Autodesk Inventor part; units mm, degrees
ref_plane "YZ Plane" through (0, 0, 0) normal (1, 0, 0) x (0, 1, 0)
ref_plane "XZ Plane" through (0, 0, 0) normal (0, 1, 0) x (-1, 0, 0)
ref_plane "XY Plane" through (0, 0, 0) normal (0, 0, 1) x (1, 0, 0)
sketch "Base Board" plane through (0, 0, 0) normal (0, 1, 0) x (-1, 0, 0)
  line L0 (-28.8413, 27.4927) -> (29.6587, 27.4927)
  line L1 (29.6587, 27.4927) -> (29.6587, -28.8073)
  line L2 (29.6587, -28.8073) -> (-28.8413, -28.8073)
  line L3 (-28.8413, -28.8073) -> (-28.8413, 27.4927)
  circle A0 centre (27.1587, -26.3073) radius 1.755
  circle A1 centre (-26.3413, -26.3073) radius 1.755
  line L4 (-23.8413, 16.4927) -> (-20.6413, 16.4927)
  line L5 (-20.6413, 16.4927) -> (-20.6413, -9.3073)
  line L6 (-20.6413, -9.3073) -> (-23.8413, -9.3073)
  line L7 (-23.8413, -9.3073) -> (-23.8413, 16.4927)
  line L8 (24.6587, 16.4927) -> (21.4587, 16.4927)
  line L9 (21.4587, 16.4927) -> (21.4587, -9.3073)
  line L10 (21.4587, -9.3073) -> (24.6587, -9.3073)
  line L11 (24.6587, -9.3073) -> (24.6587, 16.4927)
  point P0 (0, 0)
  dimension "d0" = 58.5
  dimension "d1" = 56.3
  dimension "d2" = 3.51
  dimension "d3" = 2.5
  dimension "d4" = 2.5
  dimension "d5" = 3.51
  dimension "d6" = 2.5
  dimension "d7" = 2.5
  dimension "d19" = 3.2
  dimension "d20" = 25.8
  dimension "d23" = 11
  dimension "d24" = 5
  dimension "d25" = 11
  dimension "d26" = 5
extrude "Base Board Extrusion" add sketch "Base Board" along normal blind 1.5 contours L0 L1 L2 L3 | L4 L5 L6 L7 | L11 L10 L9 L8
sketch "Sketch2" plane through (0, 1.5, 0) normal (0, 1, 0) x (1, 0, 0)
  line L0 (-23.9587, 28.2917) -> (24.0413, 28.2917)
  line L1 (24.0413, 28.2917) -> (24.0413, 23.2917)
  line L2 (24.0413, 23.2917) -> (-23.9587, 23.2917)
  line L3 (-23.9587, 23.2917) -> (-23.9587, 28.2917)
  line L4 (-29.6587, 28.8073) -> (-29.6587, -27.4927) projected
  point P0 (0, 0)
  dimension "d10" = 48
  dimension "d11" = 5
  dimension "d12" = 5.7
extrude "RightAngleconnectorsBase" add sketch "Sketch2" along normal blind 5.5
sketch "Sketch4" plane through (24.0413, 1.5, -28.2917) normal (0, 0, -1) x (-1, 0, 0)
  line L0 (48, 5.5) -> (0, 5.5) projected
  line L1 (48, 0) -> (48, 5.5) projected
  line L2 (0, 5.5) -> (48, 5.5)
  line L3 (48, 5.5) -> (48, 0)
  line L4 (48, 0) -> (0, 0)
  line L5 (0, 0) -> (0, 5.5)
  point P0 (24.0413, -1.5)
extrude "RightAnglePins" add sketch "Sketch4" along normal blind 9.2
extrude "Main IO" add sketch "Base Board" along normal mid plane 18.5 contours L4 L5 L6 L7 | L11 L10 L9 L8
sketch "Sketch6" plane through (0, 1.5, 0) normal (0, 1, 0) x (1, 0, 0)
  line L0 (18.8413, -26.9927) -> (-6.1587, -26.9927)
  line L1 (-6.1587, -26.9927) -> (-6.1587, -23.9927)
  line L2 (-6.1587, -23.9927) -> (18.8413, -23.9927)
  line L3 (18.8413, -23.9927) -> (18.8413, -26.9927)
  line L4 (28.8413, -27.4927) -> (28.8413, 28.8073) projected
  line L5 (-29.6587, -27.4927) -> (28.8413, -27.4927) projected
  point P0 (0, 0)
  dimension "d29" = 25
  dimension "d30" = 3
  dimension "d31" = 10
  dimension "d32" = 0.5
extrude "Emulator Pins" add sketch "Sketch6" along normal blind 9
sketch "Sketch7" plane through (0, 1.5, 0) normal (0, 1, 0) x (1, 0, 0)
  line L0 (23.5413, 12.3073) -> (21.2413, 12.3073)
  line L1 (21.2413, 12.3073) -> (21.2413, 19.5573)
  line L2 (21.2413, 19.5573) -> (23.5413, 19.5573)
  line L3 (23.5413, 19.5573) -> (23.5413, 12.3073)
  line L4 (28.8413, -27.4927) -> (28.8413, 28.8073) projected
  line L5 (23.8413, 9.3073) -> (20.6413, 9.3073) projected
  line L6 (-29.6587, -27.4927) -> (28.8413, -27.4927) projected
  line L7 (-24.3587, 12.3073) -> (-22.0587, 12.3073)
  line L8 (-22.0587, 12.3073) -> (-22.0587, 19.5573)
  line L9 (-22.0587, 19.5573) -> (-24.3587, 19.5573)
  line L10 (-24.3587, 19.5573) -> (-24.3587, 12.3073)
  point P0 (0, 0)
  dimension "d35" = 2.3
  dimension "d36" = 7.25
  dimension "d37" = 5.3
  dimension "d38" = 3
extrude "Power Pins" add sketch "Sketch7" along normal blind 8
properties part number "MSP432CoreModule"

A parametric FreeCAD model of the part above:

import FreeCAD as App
import Part
import Sketcher
from FreeCAD import Vector
Q = App.Units.Quantity


def add_polygon(sketch, points):
    """Adds a closed chain of lines whose ends are joined by coincident constraints."""
    first, n = sketch.GeometryCount, len(points)
    for a, b in zip(points, points[1:] + points[:1]):
        sketch.addGeometry(Part.LineSegment(App.Vector(*a, 0), App.Vector(*b, 0)), False)
    for i in range(n):
        sketch.addConstraint(Sketcher.Constraint("Coincident", first + i, 2, first + (i + 1) % n, 1))

doc = App.newDocument("Part")
body = doc.addObject("PartDesign::Body", "Body")

sketch1 = body.newObject("Sketcher::SketchObject", "Sketch")
sketch1.AttachmentSupport = (doc.getObject("XZ_Plane"), [""])
sketch1.MapMode = "FlatFace"
add_polygon(sketch1, [(-29.7, 27.5), (28.8, 27.5), (28.8, -28.8), (-29.7, -28.8)])
sketch1.addGeometry(Part.Circle(Vector(26.3, -26.3, 0), Vector(0, 0, 1), 1.8), False)
sketch1.addGeometry(Part.Circle(Vector(-27.2, -26.3, 0), Vector(0, 0, 1), 1.8), False)
sketch1.addConstraint(Sketcher.Constraint("Horizontal", 0))
sketch1.addConstraint(Sketcher.Constraint("Vertical", 1))
sketch1.addConstraint(Sketcher.Constraint("Horizontal", 2))
sketch1.addConstraint(Sketcher.Constraint("Vertical", 3))
sketch1.addConstraint(Sketcher.Constraint("Equal", 4, 5))
sketch1.addConstraint(Sketcher.Constraint("Horizontal", 4, 3, 5, 3))
sketch1.addConstraint(Sketcher.Constraint("Diameter", 4, Q("3.51 mm")))
sketch1.addConstraint(Sketcher.Constraint("DistanceX", 0, 1, 0, 2, Q("58.5 mm")))
sketch1.addConstraint(Sketcher.Constraint("DistanceY", 1, 2, 1, 1, Q("56.3 mm")))
sketch1.addConstraint(Sketcher.Constraint("DistanceX", 4, 3, 0, 2, Q("2.5 mm")))
sketch1.addConstraint(Sketcher.Constraint("DistanceY", 1, 2, 4, 3, Q("2.5 mm")))
sketch1.addConstraint(Sketcher.Constraint("DistanceX", 2, 2, 5, 3, Q("2.5 mm")))
sketch1.addConstraint(Sketcher.Constraint("DistanceX", -1, 1, 4, 3, Q("26.3413 mm")))
sketch1.addConstraint(Sketcher.Constraint("DistanceY", 4, 3, -1, 1, Q("26.3073 mm")))
pad1 = body.newObject("PartDesign::Pad", "Pad")
pad1.Profile = sketch1
pad1.Length = 1.5
pad1.Reversed = True

sketch2 = body.newObject("Sketcher::SketchObject", "Sketch001")
sketch2.AttachmentSupport = (doc.getObject("XZ_Plane"), [""])
sketch2.MapMode = "FlatFace"
sketch2.AttachmentOffset = App.Placement(Vector(0, 0, -1.5), App.Rotation())
add_polygon(sketch2, [(24, -28), (-24, -28), (-24, -23), (24, -23)])
sketch2.addConstraint(Sketcher.Constraint("Horizontal", 0))
sketch2.addConstraint(Sketcher.Constraint("Vertical", 1))
sketch2.addConstraint(Sketcher.Constraint("Horizontal", 2))
sketch2.addConstraint(Sketcher.Constraint("Vertical", 3))
sketch2.addConstraint(Sketcher.Constraint("DistanceX", 0, 2, 0, 1, Q("48 mm")))
sketch2.addConstraint(Sketcher.Constraint("DistanceY", 1, 1, 1, 2, Q("5 mm")))
sketch2.addConstraint(Sketcher.Constraint("DistanceX", 0, 2, -1, 1, Q("23.9587 mm")))
sketch2.addConstraint(Sketcher.Constraint("DistanceY", 0, 2, -1, 1, Q("28.2917 mm")))
pad2 = body.newObject("PartDesign::Pad", "Pad001")
pad2.Profile = sketch2
pad2.Length = 5.5
pad2.Reversed = True

sketch3 = body.newObject("Sketcher::SketchObject", "Sketch002")
sketch3.AttachmentSupport = (doc.getObject("XY_Plane"), [""])
sketch3.MapMode = "FlatFace"
sketch3.AttachmentOffset = App.Placement(Vector(0, 0, -28.2917), App.Rotation())
add_polygon(sketch3, [(-24, 2), (-24, 7), (24, 7), (24, 2)])
sketch3.addConstraint(Sketcher.Constraint("Vertical", 0))
sketch3.addConstraint(Sketcher.Constraint("Horizontal", 1))
sketch3.addConstraint(Sketcher.Constraint("Vertical", 2))
sketch3.addConstraint(Sketcher.Constraint("Horizontal", 3))
sketch3.addConstraint(Sketcher.Constraint("DistanceX", 1, 1, 1, 2, Q("48 mm")))
sketch3.addConstraint(Sketcher.Constraint("DistanceY", 0, 1, 0, 2, Q("5.5 mm")))
sketch3.addConstraint(Sketcher.Constraint("DistanceY", -1, 1, 0, 2, Q("7 mm")))
sketch3.addConstraint(Sketcher.Constraint("DistanceX", 0, 2, -1, 1, Q("23.9587 mm")))
pad3 = body.newObject("PartDesign::Pad", "Pad002")
pad3.Profile = sketch3
pad3.Length = 9.2
pad3.Reversed = True

sketch4 = body.newObject("Sketcher::SketchObject", "Sketch003")
sketch4.AttachmentSupport = (doc.getObject("XZ_Plane"), [""])
sketch4.MapMode = "FlatFace"
add_polygon(sketch4, [(20.6, 16.5), (23.8, 16.5), (23.8, -9.3), (20.6, -9.3)])
add_polygon(sketch4, [(-24.7, -9.3), (-24.7, 16.5), (-21.5, 16.5), (-21.5, -9.3)])
sketch4.addConstraint(Sketcher.Constraint("Horizontal", 0))
sketch4.addConstraint(Sketcher.Constraint("Vertical", 1))
sketch4.addConstraint(Sketcher.Constraint("Horizontal", 2))
sketch4.addConstraint(Sketcher.Constraint("Vertical", 3))
sketch4.addConstraint(Sketcher.Constraint("Vertical", 4))
sketch4.addConstraint(Sketcher.Constraint("Horizontal", 5))
sketch4.addConstraint(Sketcher.Constraint("Vertical", 6))
sketch4.addConstraint(Sketcher.Constraint("Horizontal", 7))
sketch4.addConstraint(Sketcher.Constraint("Horizontal", 3, 2, 4, 2))
sketch4.addConstraint(Sketcher.Constraint("Horizontal", 2, 2, 6, 2))
sketch4.addConstraint(Sketcher.Constraint("Equal", 2, 5))
sketch4.addConstraint(Sketcher.Constraint("DistanceX", 0, 1, 0, 2, Q("3.2 mm")))
sketch4.addConstraint(Sketcher.Constraint("DistanceY", 1, 2, 1, 1, Q("25.8 mm")))
sketch4.addConstraint(Sketcher.Constraint("DistanceX", 4, 2, 3, 2, Q("45.3 mm")))
sketch4.addConstraint(Sketcher.Constraint("DistanceX", -1, 1, 0, 2, Q("23.8413 mm")))
sketch4.addConstraint(Sketcher.Constraint("DistanceY", -1, 1, 0, 2, Q("16.4927 mm")))
pad4 = body.newObject("PartDesign::Pad", "Pad003")
pad4.Profile = sketch4
pad4.Length = 18.5
pad4.Midplane = True

sketch5 = body.newObject("Sketcher::SketchObject", "Sketch004")
sketch5.AttachmentSupport = (doc.getObject("XZ_Plane"), [""])
sketch5.MapMode = "FlatFace"
sketch5.AttachmentOffset = App.Placement(Vector(0, 0, -1.5), App.Rotation())
add_polygon(sketch5, [(-6.2, 27), (18.8, 27), (18.8, 24), (-6.2, 24)])
sketch5.addConstraint(Sketcher.Constraint("Horizontal", 0))
sketch5.addConstraint(Sketcher.Constraint("Vertical", 1))
sketch5.addConstraint(Sketcher.Constraint("Horizontal", 2))
sketch5.addConstraint(Sketcher.Constraint("Vertical", 3))
sketch5.addConstraint(Sketcher.Constraint("DistanceX", 0, 1, 0, 2, Q("25 mm")))
sketch5.addConstraint(Sketcher.Constraint("DistanceY", 1, 2, 1, 1, Q("3 mm")))
sketch5.addConstraint(Sketcher.Constraint("DistanceX", -1, 1, 0, 2, Q("18.8413 mm")))
sketch5.addConstraint(Sketcher.Constraint("DistanceY", -1, 1, 0, 2, Q("26.9927 mm")))
pad5 = body.newObject("PartDesign::Pad", "Pad004")
pad5.Profile = sketch5
pad5.Length = 9
pad5.Reversed = True

sketch6 = body.newObject("Sketcher::SketchObject", "Sketch005")
sketch6.AttachmentSupport = (doc.getObject("XZ_Plane"), [""])
sketch6.MapMode = "FlatFace"
sketch6.AttachmentOffset = App.Placement(Vector(0, 0, -1.5), App.Rotation())
add_polygon(sketch6, [(21.2, -12.3), (23.5, -12.3), (23.5, -19.6), (21.2, -19.6)])
add_polygon(sketch6, [(-24.4, -19.6), (-24.4, -12.3), (-22.1, -12.3), (-22.1, -19.6)])
sketch6.addConstraint(Sketcher.Constraint("Horizontal", 0))
sketch6.addConstraint(Sketcher.Constraint("Vertical", 1))
sketch6.addConstraint(Sketcher.Constraint("Horizontal", 2))
sketch6.addConstraint(Sketcher.Constraint("Vertical", 3))
sketch6.addConstraint(Sketcher.Constraint("Vertical", 4))
sketch6.addConstraint(Sketcher.Constraint("Horizontal", 5))
sketch6.addConstraint(Sketcher.Constraint("Vertical", 6))
sketch6.addConstraint(Sketcher.Constraint("Horizontal", 7))
sketch6.addConstraint(Sketcher.Constraint("Horizontal", 3, 2, 4, 2))
sketch6.addConstraint(Sketcher.Constraint("Horizontal", 2, 2, 6, 2))
sketch6.addConstraint(Sketcher.Constraint("Equal", 2, 5))
sketch6.addConstraint(Sketcher.Constraint("DistanceX", 0, 1, 0, 2, Q("2.3 mm")))
sketch6.addConstraint(Sketcher.Constraint("DistanceY", 1, 2, 1, 1, Q("7.25 mm")))
sketch6.addConstraint(Sketcher.Constraint("DistanceX", 4, 2, 3, 2, Q("45.6 mm")))
sketch6.addConstraint(Sketcher.Constraint("DistanceX", -1, 1, 0, 2, Q("23.5413 mm")))
sketch6.addConstraint(Sketcher.Constraint("DistanceY", 0, 2, -1, 1, Q("12.3073 mm")))
pad6 = body.newObject("PartDesign::Pad", "Pad005")
pad6.Profile = sketch6
pad6.Length = 8
pad6.Reversed = True

doc.recompute()
